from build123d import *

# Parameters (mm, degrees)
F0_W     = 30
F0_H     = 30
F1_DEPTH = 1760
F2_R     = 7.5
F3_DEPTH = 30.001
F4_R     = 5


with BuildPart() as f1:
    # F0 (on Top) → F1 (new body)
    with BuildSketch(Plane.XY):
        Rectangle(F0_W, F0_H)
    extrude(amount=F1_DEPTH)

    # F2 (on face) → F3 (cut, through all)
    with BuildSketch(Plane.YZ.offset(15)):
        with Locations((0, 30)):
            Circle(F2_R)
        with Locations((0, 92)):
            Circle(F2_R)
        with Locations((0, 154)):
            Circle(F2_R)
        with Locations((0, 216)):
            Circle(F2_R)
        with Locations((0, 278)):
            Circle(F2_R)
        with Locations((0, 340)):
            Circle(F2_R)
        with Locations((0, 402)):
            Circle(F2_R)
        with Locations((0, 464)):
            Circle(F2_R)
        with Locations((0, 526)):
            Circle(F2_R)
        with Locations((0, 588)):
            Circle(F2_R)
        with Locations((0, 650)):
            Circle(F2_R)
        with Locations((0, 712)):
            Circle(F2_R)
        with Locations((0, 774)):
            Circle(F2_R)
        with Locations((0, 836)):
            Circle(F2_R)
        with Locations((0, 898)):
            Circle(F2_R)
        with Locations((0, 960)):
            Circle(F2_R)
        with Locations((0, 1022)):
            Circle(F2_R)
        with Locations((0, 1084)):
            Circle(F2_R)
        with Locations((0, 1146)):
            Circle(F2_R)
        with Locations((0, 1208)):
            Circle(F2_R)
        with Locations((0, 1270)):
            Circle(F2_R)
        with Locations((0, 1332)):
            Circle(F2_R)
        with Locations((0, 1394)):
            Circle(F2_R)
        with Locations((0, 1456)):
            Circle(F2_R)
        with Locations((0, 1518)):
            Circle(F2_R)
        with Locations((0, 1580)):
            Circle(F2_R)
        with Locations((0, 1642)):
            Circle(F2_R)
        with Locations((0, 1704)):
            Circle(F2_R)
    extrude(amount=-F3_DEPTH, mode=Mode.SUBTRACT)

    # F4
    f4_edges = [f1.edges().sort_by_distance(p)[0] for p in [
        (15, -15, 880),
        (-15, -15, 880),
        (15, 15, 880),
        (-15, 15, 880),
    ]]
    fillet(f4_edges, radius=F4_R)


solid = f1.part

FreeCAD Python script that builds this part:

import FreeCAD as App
import Part
import Sketcher
from FreeCAD import Vector


def edges_at(feature, points):
    """Names of the edges that pass closest to the given points."""
    edges = feature.Shape.Edges
    near = lambda p: min(range(len(edges)), key=lambda i: edges[i].distToShape(Part.Vertex(*p))[0])
    return sorted({f"Edge{near(p) + 1}" for p in points})

doc = App.newDocument("Part")
body = doc.addObject("PartDesign::Body", "Body")

sketch1 = body.newObject("Sketcher::SketchObject", "Sketch")
sketch1.AttachmentSupport = (doc.getObject("XY_Plane"), [""])
sketch1.MapMode = "FlatFace"
sketch1.addGeometry(Part.LineSegment(Vector(-15, 15, 0), Vector(-15, -15, 0)), False)
sketch1.addGeometry(Part.LineSegment(Vector(-15, -15, 0), Vector(15, -15, 0)), False)
sketch1.addGeometry(Part.LineSegment(Vector(15, -15, 0), Vector(15, 15, 0)), False)
sketch1.addGeometry(Part.LineSegment(Vector(15, 15, 0), Vector(-15, 15, 0)), False)
sketch1.addConstraint(Sketcher.Constraint("Coincident", 0, 2, 1, 1))
sketch1.addConstraint(Sketcher.Constraint("Coincident", 1, 2, 2, 1))
sketch1.addConstraint(Sketcher.Constraint("Coincident", 2, 2, 3, 1))
sketch1.addConstraint(Sketcher.Constraint("Coincident", 3, 2, 0, 1))
sketch1.addConstraint(Sketcher.Constraint("Vertical", 0))
sketch1.addConstraint(Sketcher.Constraint("Horizontal", 1))
sketch1.addConstraint(Sketcher.Constraint("Vertical", 2))
sketch1.addConstraint(Sketcher.Constraint("Horizontal", 3))
sketch1.addConstraint(Sketcher.Constraint("Symmetric", 0, 2, 2, 2, -1, 1))
sketch1.addConstraint(Sketcher.Constraint("Equal", 3, 0))
sketch1.addConstraint(Sketcher.Constraint("DistanceX", 1, 1, 1, 2, 30.0))
pad1 = body.newObject("PartDesign::Pad", "Pad")
pad1.Profile = sketch1
pad1.Length = 1760

sketch2 = body.newObject("Sketcher::SketchObject", "Sketch001")
sketch2.AttachmentSupport = (doc.getObject("YZ_Plane"), [""])
sketch2.MapMode = "FlatFace"
sketch2.AttachmentOffset = App.Placement(Vector(0, 0, 15), App.Rotation())
sketch2.addGeometry(Part.Circle(Vector(0, 30, 0), Vector(0, 0, 1), 8), False)
sketch2.addGeometry(Part.Circle(Vector(0, 92, 0), Vector(0, 0, 1), 8), False)
sketch2.addGeometry(Part.Circle(Vector(0, 154, 0), Vector(0, 0, 1), 8), False)
sketch2.addGeometry(Part.Circle(Vector(0, 216, 0), Vector(0, 0, 1), 8), False)
sketch2.addGeometry(Part.Circle(Vector(0, 278, 0), Vector(0, 0, 1), 8), False)
sketch2.addGeometry(Part.Circle(Vector(0, 340, 0), Vector(0, 0, 1), 8), False)
sketch2.addGeometry(Part.Circle(Vector(0, 402, 0), Vector(0, 0, 1), 8), False)
sketch2.addGeometry(Part.Circle(Vector(0, 464, 0), Vector(0, 0, 1), 8), False)
sketch2.addGeometry(Part.Circle(Vector(0, 526, 0), Vector(0, 0, 1), 8), False)
sketch2.addGeometry(Part.Circle(Vector(0, 588, 0), Vector(0, 0, 1), 8), False)
sketch2.addGeometry(Part.Circle(Vector(0, 650, 0), Vector(0, 0, 1), 8), False)
sketch2.addGeometry(Part.Circle(Vector(0, 712, 0), Vector(0, 0, 1), 8), False)
sketch2.addGeometry(Part.Circle(Vector(0, 774, 0), Vector(0, 0, 1), 8), False)
sketch2.addGeometry(Part.Circle(Vector(0, 836, 0), Vector(0, 0, 1), 8), False)
sketch2.addGeometry(Part.Circle(Vector(0, 898, 0), Vector(0, 0, 1), 8), False)
sketch2.addGeometry(Part.Circle(Vector(0, 960, 0), Vector(0, 0, 1), 8), False)
sketch2.addGeometry(Part.Circle(Vector(0, 1022, 0), Vector(0, 0, 1), 8), False)
sketch2.addGeometry(Part.Circle(Vector(0, 1084, 0), Vector(0, 0, 1), 8), False)
sketch2.addGeometry(Part.Circle(Vector(0, 1146, 0), Vector(0, 0, 1), 8), False)
sketch2.addGeometry(Part.Circle(Vector(0, 1208, 0), Vector(0, 0, 1), 8), False)
sketch2.addGeometry(Part.Circle(Vector(0, 1270, 0), Vector(0, 0, 1), 8), False)
sketch2.addGeometry(Part.Circle(Vector(0, 1332, 0), Vector(0, 0, 1), 8), False)
sketch2.addGeometry(Part.Circle(Vector(0, 1394, 0), Vector(0, 0, 1), 8), False)
sketch2.addGeometry(Part.Circle(Vector(0, 1456, 0), Vector(0, 0, 1), 8), False)
sketch2.addGeometry(Part.Circle(Vector(0, 1518, 0), Vector(0, 0, 1), 8), False)
sketch2.addGeometry(Part.Circle(Vector(0, 1580, 0), Vector(0, 0, 1), 8), False)
sketch2.addGeometry(Part.Circle(Vector(0, 1642, 0), Vector(0, 0, 1), 8), False)
sketch2.addGeometry(Part.Circle(Vector(0, 1704, 0), Vector(0, 0, 1), 8), False)
sketch2.addConstraint(Sketcher.Constraint("Equal", 0, 1))
sketch2.addConstraint(Sketcher.Constraint("Equal", 1, 2))
sketch2.addConstraint(Sketcher.Constraint("Equal", 2, 3))
sketch2.addConstraint(Sketcher.Constraint("Equal", 3, 4))
sketch2.addConstraint(Sketcher.Constraint("Equal", 4, 5))
sketch2.addConstraint(Sketcher.Constraint("Equal", 5, 6))
sketch2.addConstraint(Sketcher.Constraint("Equal", 6, 7))
sketch2.addConstraint(Sketcher.Constraint("Equal", 7, 8))
sketch2.addConstraint(Sketcher.Constraint("Equal", 8, 9))
sketch2.addConstraint(Sketcher.Constraint("Equal", 9, 10))
sketch2.addConstraint(Sketcher.Constraint("Equal", 10, 11))
sketch2.addConstraint(Sketcher.Constraint("Equal", 11, 12))
sketch2.addConstraint(Sketcher.Constraint("Equal", 12, 13))
sketch2.addConstraint(Sketcher.Constraint("Equal", 13, 14))
sketch2.addConstraint(Sketcher.Constraint("Equal", 14, 15))
sketch2.addConstraint(Sketcher.Constraint("Equal", 15, 16))
sketch2.addConstraint(Sketcher.Constraint("Equal", 16, 17))
sketch2.addConstraint(Sketcher.Constraint("Equal", 17, 18))
sketch2.addConstraint(Sketcher.Constraint("Equal", 18, 19))
sketch2.addConstraint(Sketcher.Constraint("Equal", 19, 20))
sketch2.addConstraint(Sketcher.Constraint("Equal", 20, 21))
sketch2.addConstraint(Sketcher.Constraint("Equal", 21, 22))
sketch2.addConstraint(Sketcher.Constraint("Equal", 22, 23))
sketch2.addConstraint(Sketcher.Constraint("Equal", 23, 24))
sketch2.addConstraint(Sketcher.Constraint("Equal", 24, 25))
sketch2.addConstraint(Sketcher.Constraint("Equal", 25, 26))
sketch2.addConstraint(Sketcher.Constraint("Equal", 26, 27))
sketch2.addConstraint(Sketcher.Constraint("PointOnObject", 0, 3, -2))
sketch2.addConstraint(Sketcher.Constraint("PointOnObject", 1, 3, -2))
sketch2.addConstraint(Sketcher.Constraint("PointOnObject", 2, 3, -2))
sketch2.addConstraint(Sketcher.Constraint("PointOnObject", 3, 3, -2))
sketch2.addConstraint(Sketcher.Constraint("PointOnObject", 4, 3, -2))
sketch2.addConstraint(Sketcher.Constraint("PointOnObject", 5, 3, -2))
sketch2.addConstraint(Sketcher.Constraint("PointOnObject", 6, 3, -2))
sketch2.addConstraint(Sketcher.Constraint("PointOnObject", 7, 3, -2))
sketch2.addConstraint(Sketcher.Constraint("PointOnObject", 8, 3, -2))
sketch2.addConstraint(Sketcher.Constraint("PointOnObject", 9, 3, -2))
sketch2.addConstraint(Sketcher.Constraint("PointOnObject", 10, 3, -2))
sketch2.addConstraint(Sketcher.Constraint("PointOnObject", 11, 3, -2))
sketch2.addConstraint(Sketcher.Constraint("PointOnObject", 12, 3, -2))
sketch2.addConstraint(Sketcher.Constraint("PointOnObject", 13, 3, -2))
sketch2.addConstraint(Sketcher.Constraint("PointOnObject", 14, 3, -2))
sketch2.addConstraint(Sketcher.Constraint("PointOnObject", 15, 3, -2))
sketch2.addConstraint(Sketcher.Constraint("PointOnObject", 16, 3, -2))
sketch2.addConstraint(Sketcher.Constraint("PointOnObject", 17, 3, -2))
sketch2.addConstraint(Sketcher.Constraint("PointOnObject", 18, 3, -2))
sketch2.addConstraint(Sketcher.Constraint("PointOnObject", 19, 3, -2))
sketch2.addConstraint(Sketcher.Constraint("PointOnObject", 20, 3, -2))
sketch2.addConstraint(Sketcher.Constraint("PointOnObject", 21, 3, -2))
sketch2.addConstraint(Sketcher.Constraint("PointOnObject", 22, 3, -2))
sketch2.addConstraint(Sketcher.Constraint("PointOnObject", 23, 3, -2))
sketch2.addConstraint(Sketcher.Constraint("PointOnObject", 24, 3, -2))
sketch2.addConstraint(Sketcher.Constraint("PointOnObject", 25, 3, -2))
sketch2.addConstraint(Sketcher.Constraint("PointOnObject", 26, 3, -2))
sketch2.addConstraint(Sketcher.Constraint("PointOnObject", 27, 3, -2))
sketch2.addConstraint(Sketcher.Constraint("Diameter", 0, 15.0))
sketch2.addConstraint(Sketcher.Constraint("DistanceY", -1, 1, 0, 3, 30.0))
sketch2.addConstraint(Sketcher.Constraint("DistanceY", -1, 1, 1, 3, 92.0))
sketch2.addConstraint(Sketcher.Constraint("DistanceY", -1, 1, 2, 3, 154.0))
sketch2.addConstraint(Sketcher.Constraint("DistanceY", -1, 1, 3, 3, 216.0))
sketch2.addConstraint(Sketcher.Constraint("DistanceY", -1, 1, 4, 3, 278.0))
sketch2.addConstraint(Sketcher.Constraint("DistanceY", -1, 1, 5, 3, 340.0))
sketch2.addConstraint(Sketcher.Constraint("DistanceY", -1, 1, 6, 3, 402.0))
sketch2.addConstraint(Sketcher.Constraint("DistanceY", -1, 1, 7, 3, 464.0))
sketch2.addConstraint(Sketcher.Constraint("DistanceY", -1, 1, 8, 3, 526.0))
sketch2.addConstraint(Sketcher.Constraint("DistanceY", -1, 1, 9, 3, 588.0))
sketch2.addConstraint(Sketcher.Constraint("DistanceY", -1, 1, 10, 3, 650.0))
sketch2.addConstraint(Sketcher.Constraint("DistanceY", -1, 1, 11, 3, 712.0))
sketch2.addConstraint(Sketcher.Constraint("DistanceY", -1, 1, 12, 3, 774.0))
sketch2.addConstraint(Sketcher.Constraint("DistanceY", -1, 1, 13, 3, 836.0))
sketch2.addConstraint(Sketcher.Constraint("DistanceY", -1, 1, 14, 3, 898.0))
sketch2.addConstraint(Sketcher.Constraint("DistanceY", -1, 1, 15, 3, 960.0))
sketch2.addConstraint(Sketcher.Constraint("DistanceY", -1, 1, 16, 3, 1022.0))
sketch2.addConstraint(Sketcher.Constraint("DistanceY", -1, 1, 17, 3, 1084.0))
sketch2.addConstraint(Sketcher.Constraint("DistanceY", -1, 1, 18, 3, 1146.0))
sketch2.addConstraint(Sketcher.Constraint("DistanceY", -1, 1, 19, 3, 1208.0))
sketch2.addConstraint(Sketcher.Constraint("DistanceY", -1, 1, 20, 3, 1270.0))
sketch2.addConstraint(Sketcher.Constraint("DistanceY", -1, 1, 21, 3, 1332.0))
sketch2.addConstraint(Sketcher.Constraint("DistanceY", -1, 1, 22, 3, 1394.0))
sketch2.addConstraint(Sketcher.Constraint("DistanceY", -1, 1, 23, 3, 1456.0))
sketch2.addConstraint(Sketcher.Constraint("DistanceY", -1, 1, 24, 3, 1518.0))
sketch2.addConstraint(Sketcher.Constraint("DistanceY", -1, 1, 25, 3, 1580.0))
sketch2.addConstraint(Sketcher.Constraint("DistanceY", -1, 1, 26, 3, 1642.0))
sketch2.addConstraint(Sketcher.Constraint("DistanceY", -1, 1, 27, 3, 1704.0))
pocket1 = body.newObject("PartDesign::Pocket", "Pocket")
pocket1.Profile = sketch2
pocket1.Type = "ThroughAll"
doc.recompute()

fillet = body.newObject("PartDesign::Fillet", "Fillet")
fillet.Base = (pocket1, edges_at(pocket1, [
    (15, -15, 880),
    (-15, -15, 880),
    (15, 15, 880),
    (-15, 15, 880),
]))
fillet.Radius = 5

doc.recompute()
